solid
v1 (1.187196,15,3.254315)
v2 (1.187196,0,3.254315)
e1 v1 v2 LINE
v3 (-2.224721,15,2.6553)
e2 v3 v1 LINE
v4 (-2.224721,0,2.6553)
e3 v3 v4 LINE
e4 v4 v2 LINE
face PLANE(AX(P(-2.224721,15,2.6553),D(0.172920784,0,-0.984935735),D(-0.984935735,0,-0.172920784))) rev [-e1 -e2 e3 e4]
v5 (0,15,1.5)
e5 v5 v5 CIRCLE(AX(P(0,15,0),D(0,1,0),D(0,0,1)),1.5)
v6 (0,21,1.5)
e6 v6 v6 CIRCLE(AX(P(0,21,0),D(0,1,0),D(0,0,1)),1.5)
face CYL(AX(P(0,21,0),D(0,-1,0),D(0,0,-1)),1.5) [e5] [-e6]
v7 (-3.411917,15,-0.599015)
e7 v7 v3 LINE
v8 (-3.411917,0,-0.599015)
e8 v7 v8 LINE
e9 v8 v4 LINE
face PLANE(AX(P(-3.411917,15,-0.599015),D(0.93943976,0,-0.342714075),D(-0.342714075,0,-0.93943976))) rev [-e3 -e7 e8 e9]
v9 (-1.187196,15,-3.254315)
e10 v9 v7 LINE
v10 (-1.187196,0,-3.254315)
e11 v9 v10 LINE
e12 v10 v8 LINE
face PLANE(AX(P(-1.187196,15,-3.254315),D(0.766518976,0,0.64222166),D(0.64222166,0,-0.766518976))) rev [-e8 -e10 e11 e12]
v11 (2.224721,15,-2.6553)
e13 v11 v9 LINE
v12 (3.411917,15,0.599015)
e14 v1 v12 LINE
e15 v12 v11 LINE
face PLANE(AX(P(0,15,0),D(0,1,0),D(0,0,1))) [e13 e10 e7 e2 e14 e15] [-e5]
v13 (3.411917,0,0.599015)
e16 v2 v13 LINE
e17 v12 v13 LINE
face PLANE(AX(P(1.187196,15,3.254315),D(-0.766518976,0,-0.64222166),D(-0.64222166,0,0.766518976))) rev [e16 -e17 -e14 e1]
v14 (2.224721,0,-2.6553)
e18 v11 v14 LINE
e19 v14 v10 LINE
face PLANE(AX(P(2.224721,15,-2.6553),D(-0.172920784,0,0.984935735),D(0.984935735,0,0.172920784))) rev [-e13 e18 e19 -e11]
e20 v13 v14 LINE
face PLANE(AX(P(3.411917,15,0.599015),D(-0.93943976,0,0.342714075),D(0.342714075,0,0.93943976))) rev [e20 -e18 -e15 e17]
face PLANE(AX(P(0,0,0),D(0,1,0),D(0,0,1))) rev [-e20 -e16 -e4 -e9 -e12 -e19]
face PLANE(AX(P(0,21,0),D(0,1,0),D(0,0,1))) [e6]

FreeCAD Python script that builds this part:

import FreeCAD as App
import Part
import Sketcher


def add_polygon(sketch, points):
    """Adds a closed chain of lines whose ends are joined by coincident constraints."""
    first, n = sketch.GeometryCount, len(points)
    for a, b in zip(points, points[1:] + points[:1]):
        sketch.addGeometry(Part.LineSegment(App.Vector(*a, 0), App.Vector(*b, 0)), False)
    for i in range(n):
        sketch.addConstraint(Sketcher.Constraint("Coincident", first + i, 2, first + (i + 1) % n, 1))

doc = App.newDocument("Part")
body = doc.addObject("PartDesign::Body", "Body")

# Sketch on XZ plane
sketch1 = body.newObject("Sketcher::SketchObject", "Sketch")
sketch1.AttachmentSupport = (doc.getObject("XZ_Plane"), [""])
sketch1.MapMode = "FlatFace"
add_polygon(sketch1, [(1.2, 3.3), (3.4, 0.6), (2.2, -2.7), (-1.2, -3.3), (-3.4, -0.6), (-2.2, 2.7)])  # lines 0-5
sketch1.addConstraint([
    Sketcher.Constraint("Symmetric", 0, 2, 3, 2, -1, 1),
    Sketcher.Constraint("Symmetric", 1, 2, 4, 2, -1, 1),
    Sketcher.Constraint("Symmetric", 2, 2, 5, 2, -1, 1),
    Sketcher.Constraint("Equal", 0, 1),
    Sketcher.Constraint("Equal", 1, 2),
    Sketcher.Constraint("Distance", 0, 3.464102),
    Sketcher.Constraint("DistanceY", 1, 2, -1, 1, 2.6553),
    Sketcher.Constraint("DistanceY", 2, 2, 3, 2, 2.6553),
    Sketcher.Constraint("DistanceX", -1, 1, 1, 2, 2.224721),
])
pad1 = body.newObject("PartDesign::Pad", "Pad")
pad1.Profile = sketch1
pad1.Length = 15
pad1.Reversed = True

# Sketch on XZ plane
sketch2 = body.newObject("Sketcher::SketchObject", "Sketch001")
sketch2.AttachmentSupport = (doc.getObject("XZ_Plane"), [""])
sketch2.MapMode = "FlatFace"
sketch2.AttachmentOffset = App.Placement(App.Vector(0, 0, -15), App.Rotation())
sketch2.addGeometry(Part.Circle(App.Vector(0, 0, 0), App.Vector(0, 0, 1), 1.5), False)
sketch2.addConstraint([
    Sketcher.Constraint("Coincident", 0, 3, -1, 1),
    Sketcher.Constraint("Diameter", 0, 3.0),
])
pad2 = body.newObject("PartDesign::Pad", "Pad001")
pad2.Profile = sketch2
pad2.Length = 6
pad2.Reversed = True

doc.recompute()
